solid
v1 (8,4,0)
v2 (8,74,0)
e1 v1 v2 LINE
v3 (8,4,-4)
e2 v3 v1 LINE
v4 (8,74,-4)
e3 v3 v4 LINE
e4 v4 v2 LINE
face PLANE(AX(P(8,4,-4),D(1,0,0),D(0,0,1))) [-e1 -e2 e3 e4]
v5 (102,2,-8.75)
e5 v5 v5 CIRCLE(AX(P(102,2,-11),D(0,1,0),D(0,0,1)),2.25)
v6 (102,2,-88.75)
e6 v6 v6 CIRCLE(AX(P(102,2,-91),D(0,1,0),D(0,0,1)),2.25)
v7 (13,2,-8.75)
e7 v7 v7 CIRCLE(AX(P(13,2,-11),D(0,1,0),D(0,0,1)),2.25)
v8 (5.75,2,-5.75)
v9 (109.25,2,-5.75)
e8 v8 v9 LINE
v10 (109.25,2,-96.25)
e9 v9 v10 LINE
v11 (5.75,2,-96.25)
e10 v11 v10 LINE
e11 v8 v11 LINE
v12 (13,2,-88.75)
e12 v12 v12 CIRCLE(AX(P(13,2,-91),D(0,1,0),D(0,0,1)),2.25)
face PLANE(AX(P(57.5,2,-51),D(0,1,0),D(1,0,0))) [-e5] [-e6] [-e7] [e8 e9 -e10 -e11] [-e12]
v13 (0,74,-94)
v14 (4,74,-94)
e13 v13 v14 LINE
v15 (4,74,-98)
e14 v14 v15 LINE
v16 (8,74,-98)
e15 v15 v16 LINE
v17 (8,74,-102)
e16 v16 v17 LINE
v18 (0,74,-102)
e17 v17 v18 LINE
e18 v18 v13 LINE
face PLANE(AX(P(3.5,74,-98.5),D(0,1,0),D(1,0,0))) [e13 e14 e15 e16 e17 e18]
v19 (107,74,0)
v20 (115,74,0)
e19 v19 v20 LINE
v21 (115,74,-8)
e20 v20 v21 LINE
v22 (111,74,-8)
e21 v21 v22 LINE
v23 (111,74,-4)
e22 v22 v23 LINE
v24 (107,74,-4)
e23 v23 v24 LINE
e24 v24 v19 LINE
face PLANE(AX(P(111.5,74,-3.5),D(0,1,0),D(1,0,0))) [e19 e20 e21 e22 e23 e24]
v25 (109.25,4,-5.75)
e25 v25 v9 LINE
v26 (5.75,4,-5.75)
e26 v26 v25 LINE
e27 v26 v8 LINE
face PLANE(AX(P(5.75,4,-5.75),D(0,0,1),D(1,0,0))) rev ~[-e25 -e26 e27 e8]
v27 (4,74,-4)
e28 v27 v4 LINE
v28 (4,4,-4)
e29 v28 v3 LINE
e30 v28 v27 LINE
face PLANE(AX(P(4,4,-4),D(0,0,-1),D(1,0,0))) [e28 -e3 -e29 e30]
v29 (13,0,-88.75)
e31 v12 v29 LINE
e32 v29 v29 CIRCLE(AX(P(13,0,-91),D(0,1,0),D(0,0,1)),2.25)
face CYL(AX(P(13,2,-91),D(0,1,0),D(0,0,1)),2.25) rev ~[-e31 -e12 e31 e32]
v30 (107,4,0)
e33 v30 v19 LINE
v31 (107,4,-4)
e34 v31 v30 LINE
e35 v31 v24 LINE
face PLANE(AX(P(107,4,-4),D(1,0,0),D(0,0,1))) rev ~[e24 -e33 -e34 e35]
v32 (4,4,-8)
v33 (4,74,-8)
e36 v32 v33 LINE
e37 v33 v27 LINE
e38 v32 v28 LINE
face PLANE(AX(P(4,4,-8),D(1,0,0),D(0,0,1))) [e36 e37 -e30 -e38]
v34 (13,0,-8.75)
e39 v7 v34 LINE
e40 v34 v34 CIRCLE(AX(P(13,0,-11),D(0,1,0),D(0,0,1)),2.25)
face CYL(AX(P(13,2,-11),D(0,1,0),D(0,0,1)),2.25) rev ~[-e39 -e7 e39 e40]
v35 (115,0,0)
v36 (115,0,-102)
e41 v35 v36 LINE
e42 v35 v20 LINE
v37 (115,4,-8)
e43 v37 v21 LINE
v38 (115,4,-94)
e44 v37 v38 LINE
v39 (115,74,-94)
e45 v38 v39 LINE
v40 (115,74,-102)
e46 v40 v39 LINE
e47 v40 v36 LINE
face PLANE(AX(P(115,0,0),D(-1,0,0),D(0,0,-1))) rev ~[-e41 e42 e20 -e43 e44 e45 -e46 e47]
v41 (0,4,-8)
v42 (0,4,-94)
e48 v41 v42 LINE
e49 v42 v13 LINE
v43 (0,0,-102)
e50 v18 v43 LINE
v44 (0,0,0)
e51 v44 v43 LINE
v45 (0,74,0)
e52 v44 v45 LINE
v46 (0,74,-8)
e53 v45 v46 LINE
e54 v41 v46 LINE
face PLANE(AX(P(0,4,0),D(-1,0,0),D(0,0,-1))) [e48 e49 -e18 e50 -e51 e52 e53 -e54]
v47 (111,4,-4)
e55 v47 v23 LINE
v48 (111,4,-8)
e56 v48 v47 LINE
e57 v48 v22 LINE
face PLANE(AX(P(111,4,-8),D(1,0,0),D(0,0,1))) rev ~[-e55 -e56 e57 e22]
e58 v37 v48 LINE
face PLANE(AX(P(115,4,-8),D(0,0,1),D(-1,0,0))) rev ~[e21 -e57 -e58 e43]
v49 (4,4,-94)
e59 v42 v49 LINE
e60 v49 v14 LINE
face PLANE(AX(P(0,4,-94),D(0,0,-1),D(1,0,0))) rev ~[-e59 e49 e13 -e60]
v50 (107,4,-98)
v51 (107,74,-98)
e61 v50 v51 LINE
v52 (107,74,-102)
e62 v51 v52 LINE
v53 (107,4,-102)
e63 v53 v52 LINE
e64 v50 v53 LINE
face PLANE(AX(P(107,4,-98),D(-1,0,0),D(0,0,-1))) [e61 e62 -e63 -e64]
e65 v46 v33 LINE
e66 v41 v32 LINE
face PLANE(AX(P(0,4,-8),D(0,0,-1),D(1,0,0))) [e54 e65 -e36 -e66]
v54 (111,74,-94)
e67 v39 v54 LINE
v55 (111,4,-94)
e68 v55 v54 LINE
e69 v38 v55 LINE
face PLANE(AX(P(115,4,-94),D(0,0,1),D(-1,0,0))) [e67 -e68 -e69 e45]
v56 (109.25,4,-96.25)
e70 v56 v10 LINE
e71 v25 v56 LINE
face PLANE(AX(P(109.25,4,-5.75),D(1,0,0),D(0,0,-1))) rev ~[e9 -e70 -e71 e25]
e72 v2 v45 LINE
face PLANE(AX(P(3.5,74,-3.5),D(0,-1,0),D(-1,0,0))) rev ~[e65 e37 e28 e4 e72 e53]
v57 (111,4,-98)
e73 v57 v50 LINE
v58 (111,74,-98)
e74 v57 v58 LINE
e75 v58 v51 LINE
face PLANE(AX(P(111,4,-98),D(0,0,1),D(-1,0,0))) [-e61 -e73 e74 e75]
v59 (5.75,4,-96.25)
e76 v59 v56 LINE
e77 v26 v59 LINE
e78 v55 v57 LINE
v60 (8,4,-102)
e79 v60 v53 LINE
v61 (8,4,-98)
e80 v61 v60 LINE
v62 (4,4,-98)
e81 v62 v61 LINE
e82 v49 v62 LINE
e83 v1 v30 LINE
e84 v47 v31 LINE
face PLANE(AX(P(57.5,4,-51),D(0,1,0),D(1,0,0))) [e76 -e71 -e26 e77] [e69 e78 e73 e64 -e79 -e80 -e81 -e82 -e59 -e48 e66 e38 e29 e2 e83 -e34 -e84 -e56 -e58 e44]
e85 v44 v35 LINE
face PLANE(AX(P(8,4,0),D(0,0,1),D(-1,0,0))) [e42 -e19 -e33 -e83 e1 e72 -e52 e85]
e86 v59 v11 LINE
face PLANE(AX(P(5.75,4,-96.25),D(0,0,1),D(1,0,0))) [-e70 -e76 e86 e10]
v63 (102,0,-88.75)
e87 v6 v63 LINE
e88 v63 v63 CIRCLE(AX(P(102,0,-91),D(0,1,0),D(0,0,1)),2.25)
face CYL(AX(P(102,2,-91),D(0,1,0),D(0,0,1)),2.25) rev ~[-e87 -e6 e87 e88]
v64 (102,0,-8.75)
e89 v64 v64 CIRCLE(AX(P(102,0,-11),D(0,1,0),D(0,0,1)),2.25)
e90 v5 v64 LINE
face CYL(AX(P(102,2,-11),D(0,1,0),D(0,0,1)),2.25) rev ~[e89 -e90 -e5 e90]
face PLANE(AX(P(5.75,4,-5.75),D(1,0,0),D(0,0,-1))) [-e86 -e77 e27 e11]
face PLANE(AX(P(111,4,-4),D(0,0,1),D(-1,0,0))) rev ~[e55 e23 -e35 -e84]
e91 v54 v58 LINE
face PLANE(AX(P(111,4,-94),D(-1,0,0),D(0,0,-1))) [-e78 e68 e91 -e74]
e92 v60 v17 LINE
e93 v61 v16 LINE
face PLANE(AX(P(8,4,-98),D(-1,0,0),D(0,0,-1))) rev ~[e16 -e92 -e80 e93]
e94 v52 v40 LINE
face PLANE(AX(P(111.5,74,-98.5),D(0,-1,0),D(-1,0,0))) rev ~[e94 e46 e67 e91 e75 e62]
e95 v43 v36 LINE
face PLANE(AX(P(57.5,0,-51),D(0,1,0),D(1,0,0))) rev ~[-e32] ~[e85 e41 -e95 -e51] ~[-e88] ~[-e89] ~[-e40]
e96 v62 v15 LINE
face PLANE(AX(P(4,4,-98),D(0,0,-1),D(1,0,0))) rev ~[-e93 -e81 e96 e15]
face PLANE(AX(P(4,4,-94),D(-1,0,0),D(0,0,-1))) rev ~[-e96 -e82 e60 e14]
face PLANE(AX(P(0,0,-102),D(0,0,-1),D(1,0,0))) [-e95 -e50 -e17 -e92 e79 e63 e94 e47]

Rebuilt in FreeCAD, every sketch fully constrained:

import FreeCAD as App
import Part
import Sketcher

V = App.Vector
Q = App.Units.Quantity


def add_polygon(sketch, points):
    """Adds a closed chain of lines whose ends are joined by coincident constraints."""
    first, n = sketch.GeometryCount, len(points)
    for a, b in zip(points, points[1:] + points[:1]):
        sketch.addGeometry(Part.LineSegment(App.Vector(*a, 0), App.Vector(*b, 0)), False)
    for i in range(n):
        sketch.addConstraint(Sketcher.Constraint("Coincident", first + i, 2, first + (i + 1) % n, 1))

doc = App.newDocument("Part")
params = doc.addObject("Spreadsheet::Sheet", "Params")
for row, (alias, value) in enumerate([
    ("sketch1_width", "115 mm"),
    ("sketch1_height", "102 mm"),
    ("pad1_length", "4 mm"),
    ("sketch2_width", "103.5 mm"),
    ("sketch2_height", "90.5 mm"),
    ("pocket1_length", "2 mm"),
    ("sketch3_diameter", "4.5 mm"),
    ("pocket2_length", "13 mm"),
    ("sketch4_width", "8 mm"),
    ("pad2_length", "70 mm"),
], start=1):
    params.set(f"A{row}", alias)
    params.set(f"B{row}", "=" + value)
    params.setAlias(f"B{row}", alias)

body = doc.addObject("PartDesign::Body", "Body")

sketch1 = body.newObject("Sketcher::SketchObject", "Sketch")
sketch1.AttachmentSupport = (doc.getObject("XZ_Plane"), [""])
sketch1.MapMode = "FlatFace"
add_polygon(sketch1, [(0, -102), (0, 0), (115, 0), (115, -102)])
sketch1.addConstraint(Sketcher.Constraint("Vertical", 0))
sketch1.addConstraint(Sketcher.Constraint("Horizontal", 1))
sketch1.addConstraint(Sketcher.Constraint("Vertical", 2))
sketch1.addConstraint(Sketcher.Constraint("Horizontal", 3))
sketch1.addConstraint(Sketcher.Constraint("Coincident", 0, 2, -1, 1))
sketch1.addConstraint(Sketcher.Constraint("DistanceX", 1, 1, 1, 2, Q("115 mm")))
sketch1.addConstraint(Sketcher.Constraint("DistanceY", 0, 1, 0, 2, Q("102 mm")))
sketch1.setExpression("Constraints[9]", "Params.sketch1_width")
sketch1.setExpression("Constraints[10]", "Params.sketch1_height")
pad1 = body.newObject("PartDesign::Pad", "Pad")
pad1.Profile = sketch1
pad1.setExpression("Length", "Params.pad1_length")
pad1.Reversed = True

sketch2 = body.newObject("Sketcher::SketchObject", "Sketch001")
sketch2.AttachmentSupport = (doc.getObject("XZ_Plane"), [""])
sketch2.MapMode = "FlatFace"
sketch2.AttachmentOffset = App.Placement(V(0, 0, -4), App.Rotation())
add_polygon(sketch2, [(6, -96), (6, -6), (109, -6), (109, -96)])
sketch2.addConstraint(Sketcher.Constraint("Vertical", 0))
sketch2.addConstraint(Sketcher.Constraint("Horizontal", 1))
sketch2.addConstraint(Sketcher.Constraint("Vertical", 2))
sketch2.addConstraint(Sketcher.Constraint("Horizontal", 3))
sketch2.addConstraint(Sketcher.Constraint("DistanceX", 1, 1, 1, 2, Q("103.5 mm")))
sketch2.addConstraint(Sketcher.Constraint("DistanceY", 0, 1, 0, 2, Q("90.5 mm")))
sketch2.addConstraint(Sketcher.Constraint("DistanceX", -1, 1, 0, 2, Q("5.75 mm")))
sketch2.addConstraint(Sketcher.Constraint("DistanceY", 0, 2, -1, 1, Q("5.75 mm")))
sketch2.setExpression("Constraints[8]", "Params.sketch2_width")
sketch2.setExpression("Constraints[9]", "Params.sketch2_height")
pocket1 = body.newObject("PartDesign::Pocket", "Pocket")
pocket1.Profile = sketch2
pocket1.setExpression("Length", "Params.pocket1_length")
pocket1.Reversed = True

sketch3 = body.newObject("Sketcher::SketchObject", "Sketch002")
sketch3.AttachmentSupport = (doc.getObject("XZ_Plane"), [""])
sketch3.MapMode = "FlatFace"
sketch3.AttachmentOffset = App.Placement(V(0, 0, -2), App.Rotation())
sketch3.addGeometry(Part.Circle(V(13, -11, 0), V(0, 0, 1), 2.2), False)
sketch3.addGeometry(Part.Circle(V(13, -91, 0), V(0, 0, 1), 2.2), False)
sketch3.addGeometry(Part.Circle(V(102, -91, 0), V(0, 0, 1), 2.2), False)
sketch3.addGeometry(Part.Circle(V(102, -11, 0), V(0, 0, 1), 2.2), False)
sketch3.addConstraint(Sketcher.Constraint("Equal", 0, 1))
sketch3.addConstraint(Sketcher.Constraint("Equal", 1, 2))
sketch3.addConstraint(Sketcher.Constraint("Equal", 2, 3))
sketch3.addConstraint(Sketcher.Constraint("Horizontal", 1, 3, 2, 3))
sketch3.addConstraint(Sketcher.Constraint("Horizontal", 0, 3, 3, 3))
sketch3.addConstraint(Sketcher.Constraint("Vertical", 0, 3, 1, 3))
sketch3.addConstraint(Sketcher.Constraint("Vertical", 2, 3, 3, 3))
sketch3.addConstraint(Sketcher.Constraint("Diameter", 0, Q("4.5 mm")))
sketch3.addConstraint(Sketcher.Constraint("DistanceX", -1, 1, 0, 3, Q("13 mm")))
sketch3.addConstraint(Sketcher.Constraint("DistanceY", 0, 3, -1, 1, Q("11 mm")))
sketch3.addConstraint(Sketcher.Constraint("DistanceY", 1, 3, -1, 1, Q("91 mm")))
sketch3.addConstraint(Sketcher.Constraint("DistanceX", -1, 1, 2, 3, Q("102 mm")))
sketch3.setExpression("Constraints[7]", "Params.sketch3_diameter")
pocket2 = body.newObject("PartDesign::Pocket", "Pocket001")
pocket2.Profile = sketch3
pocket2.setExpression("Length", "Params.pocket2_length")
pocket2.Reversed = True

sketch4 = body.newObject("Sketcher::SketchObject", "Sketch003")
sketch4.AttachmentSupport = (doc.getObject("XZ_Plane"), [""])
sketch4.MapMode = "FlatFace"
sketch4.AttachmentOffset = App.Placement(V(0, 0, -4), App.Rotation())
add_polygon(sketch4, [(0, -8), (0, 0), (8, 0), (8, -4), (4, -4), (4, -8)])
add_polygon(sketch4, [(107, 0), (115, 0), (115, -8), (111, -8), (111, -4), (107, -4)])
add_polygon(sketch4, [(115, -102), (107, -102), (107, -98), (111, -98), (111, -94), (115, -94)])
add_polygon(sketch4, [(8, -102), (0, -102), (0, -94), (4, -94), (4, -98), (8, -98)])
sketch4.addConstraint(Sketcher.Constraint("Vertical", 0))
sketch4.addConstraint(Sketcher.Constraint("Horizontal", 1))
sketch4.addConstraint(Sketcher.Constraint("Vertical", 2))
sketch4.addConstraint(Sketcher.Constraint("Horizontal", 3))
sketch4.addConstraint(Sketcher.Constraint("Vertical", 4))
sketch4.addConstraint(Sketcher.Constraint("Horizontal", 5))
sketch4.addConstraint(Sketcher.Constraint("Horizontal", 6))
sketch4.addConstraint(Sketcher.Constraint("Vertical", 7))
sketch4.addConstraint(Sketcher.Constraint("Horizontal", 8))
sketch4.addConstraint(Sketcher.Constraint("Vertical", 9))
sketch4.addConstraint(Sketcher.Constraint("Horizontal", 10))
sketch4.addConstraint(Sketcher.Constraint("Vertical", 11))
sketch4.addConstraint(Sketcher.Constraint("Horizontal", 12))
sketch4.addConstraint(Sketcher.Constraint("Vertical", 13))
sketch4.addConstraint(Sketcher.Constraint("Horizontal", 14))
sketch4.addConstraint(Sketcher.Constraint("Vertical", 15))
sketch4.addConstraint(Sketcher.Constraint("Horizontal", 16))
sketch4.addConstraint(Sketcher.Constraint("Vertical", 17))
sketch4.addConstraint(Sketcher.Constraint("Horizontal", 18))
sketch4.addConstraint(Sketcher.Constraint("Vertical", 19))
sketch4.addConstraint(Sketcher.Constraint("Horizontal", 20))
sketch4.addConstraint(Sketcher.Constraint("Vertical", 21))
sketch4.addConstraint(Sketcher.Constraint("Horizontal", 22))
sketch4.addConstraint(Sketcher.Constraint("Vertical", 23))
sketch4.addConstraint(Sketcher.Constraint("Coincident", 0, 2, -1, 1))
sketch4.addConstraint(Sketcher.Constraint("PointOnObject", 6, 2, -1))
sketch4.addConstraint(Sketcher.Constraint("PointOnObject", 18, 2, -2))
sketch4.addConstraint(Sketcher.Constraint("Horizontal", 5, 2, 7, 2))
sketch4.addConstraint(Sketcher.Constraint("Horizontal", 3, 2, 9, 2))
sketch4.addConstraint(Sketcher.Constraint("Horizontal", 17, 2, 18, 2))
sketch4.addConstraint(Sketcher.Constraint("Horizontal", 16, 2, 19, 2))
sketch4.addConstraint(Sketcher.Constraint("Horizontal", 14, 2, 21, 2))
sketch4.addConstraint(Sketcher.Constraint("Vertical", 11, 2, 12, 2))
sketch4.addConstraint(Sketcher.Constraint("Vertical", 9, 2, 14, 2))
sketch4.addConstraint(Sketcher.Constraint("Vertical", 7, 2, 16, 2))
sketch4.addConstraint(Sketcher.Constraint("Vertical", 4, 2, 20, 2))
sketch4.addConstraint(Sketcher.Constraint("Vertical", 2, 2, 22, 2))
sketch4.addConstraint(Sketcher.Constraint("Equal", 3, 5))
sketch4.addConstraint(Sketcher.Constraint("Equal", 1, 6))
sketch4.addConstraint(Sketcher.Constraint("Equal", 5, 8))
sketch4.addConstraint(Sketcher.Constraint("Equal", 18, 0))
sketch4.addConstraint(Sketcher.Constraint("Equal", 22, 2))
sketch4.addConstraint(Sketcher.Constraint("Equal", 11, 13))
sketch4.addConstraint(Sketcher.Constraint("Equal", 13, 15))
sketch4.addConstraint(Sketcher.Constraint("DistanceX", 1, 1, 1, 2, Q("8 mm")))
sketch4.addConstraint(Sketcher.Constraint("DistanceX", -1, 1, 6, 2, Q("115 mm")))
sketch4.addConstraint(Sketcher.Constraint("DistanceY", 12, 2, -1, 1, Q("102 mm")))
sketch4.setExpression("Constraints[68]", "Params.sketch4_width")
pad2 = body.newObject("PartDesign::Pad", "Pad001")
pad2.Profile = sketch4
pad2.setExpression("Length", "Params.pad2_length")
pad2.Reversed = True

doc.recompute()
